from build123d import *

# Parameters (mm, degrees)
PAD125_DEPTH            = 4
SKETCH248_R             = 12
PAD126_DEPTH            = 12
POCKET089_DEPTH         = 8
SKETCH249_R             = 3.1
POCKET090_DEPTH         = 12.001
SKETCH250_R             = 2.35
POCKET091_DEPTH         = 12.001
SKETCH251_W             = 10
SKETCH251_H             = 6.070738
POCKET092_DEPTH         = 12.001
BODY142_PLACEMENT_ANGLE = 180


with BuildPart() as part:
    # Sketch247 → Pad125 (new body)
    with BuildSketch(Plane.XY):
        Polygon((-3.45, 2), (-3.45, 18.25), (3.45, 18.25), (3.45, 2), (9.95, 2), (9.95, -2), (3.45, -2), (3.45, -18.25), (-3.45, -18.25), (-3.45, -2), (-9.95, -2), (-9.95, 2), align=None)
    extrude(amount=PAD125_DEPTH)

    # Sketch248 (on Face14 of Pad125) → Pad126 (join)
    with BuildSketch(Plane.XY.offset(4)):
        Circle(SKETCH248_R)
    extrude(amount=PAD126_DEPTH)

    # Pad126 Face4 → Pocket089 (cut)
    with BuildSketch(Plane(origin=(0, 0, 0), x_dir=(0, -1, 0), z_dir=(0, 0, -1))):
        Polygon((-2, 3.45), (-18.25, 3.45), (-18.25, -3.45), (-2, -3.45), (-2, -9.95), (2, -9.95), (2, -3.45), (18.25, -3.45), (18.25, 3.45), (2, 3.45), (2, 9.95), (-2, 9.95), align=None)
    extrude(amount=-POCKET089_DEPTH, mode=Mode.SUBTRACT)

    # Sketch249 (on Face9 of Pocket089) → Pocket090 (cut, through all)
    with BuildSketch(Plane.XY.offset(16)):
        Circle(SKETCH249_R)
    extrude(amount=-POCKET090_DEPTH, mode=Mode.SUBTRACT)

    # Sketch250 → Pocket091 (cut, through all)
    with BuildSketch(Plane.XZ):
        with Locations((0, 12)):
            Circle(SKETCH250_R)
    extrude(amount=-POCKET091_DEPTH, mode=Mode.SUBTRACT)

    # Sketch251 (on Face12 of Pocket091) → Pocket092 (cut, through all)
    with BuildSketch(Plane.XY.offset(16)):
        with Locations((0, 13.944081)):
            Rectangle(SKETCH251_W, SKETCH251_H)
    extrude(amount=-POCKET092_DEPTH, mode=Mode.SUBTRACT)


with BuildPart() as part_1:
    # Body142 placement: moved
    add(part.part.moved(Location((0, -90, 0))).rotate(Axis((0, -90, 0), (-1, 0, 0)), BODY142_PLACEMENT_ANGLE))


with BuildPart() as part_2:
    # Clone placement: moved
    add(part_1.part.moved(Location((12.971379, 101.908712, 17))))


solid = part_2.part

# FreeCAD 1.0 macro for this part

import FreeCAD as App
import Part
import Sketcher


def add_polygon(sketch, points):
    """Adds a closed chain of lines whose ends are joined by coincident constraints."""
    first, n = sketch.GeometryCount, len(points)
    for a, b in zip(points, points[1:] + points[:1]):
        sketch.addGeometry(Part.LineSegment(App.Vector(*a, 0), App.Vector(*b, 0)), False)
    for i in range(n):
        sketch.addConstraint(Sketcher.Constraint("Coincident", first + i, 2, first + (i + 1) % n, 1))

doc = App.newDocument("Part")
body = doc.addObject("PartDesign::Body", "Body")

# Sketch on XY plane
sketch1 = body.newObject("Sketcher::SketchObject", "Sketch")
sketch1.AttachmentSupport = (doc.getObject("XY_Plane"), [""])
sketch1.MapMode = "FlatFace"
add_polygon(sketch1, [(-3.5, 18.2), (-3.5, 2), (-9.9, 2), (-9.9, -2), (-3.5, -2), (-3.5, -18.2), (3.5, -18.2), (3.5, -2), (9.9, -2), (9.9, 2), (3.5, 2), (3.5, 18.2)])  # lines 0-11
sketch1.addConstraint([
    Sketcher.Constraint("Vertical", 0),
    Sketcher.Constraint("Horizontal", 1),
    Sketcher.Constraint("Vertical", 2),
    Sketcher.Constraint("Horizontal", 3),
    Sketcher.Constraint("Vertical", 4),
    Sketcher.Constraint("Horizontal", 5),
    Sketcher.Constraint("Vertical", 6),
    Sketcher.Constraint("Horizontal", 7),
    Sketcher.Constraint("Vertical", 8),
    Sketcher.Constraint("Horizontal", 9),
    Sketcher.Constraint("Vertical", 10),
    Sketcher.Constraint("Horizontal", 11),
    Sketcher.Constraint("Symmetric", 0, 2, 6, 2, -1, 1),
    Sketcher.Constraint("Symmetric", 2, 2, 8, 2, -1, 1),
    Sketcher.Constraint("Symmetric", 4, 2, 10, 2, -1, 1),
    Sketcher.Constraint("Symmetric", 3, 2, 6, 2, -2),
    Sketcher.Constraint("DistanceY", 2, 2, 2, 1, 4.0),
    Sketcher.Constraint("DistanceX", 1, 2, 1, 1, 6.5),
    Sketcher.Constraint("DistanceX", 5, 1, 5, 2, 6.9),
    Sketcher.Constraint("DistanceY", 0, 2, 0, 1, 16.25),
])
pad1 = body.newObject("PartDesign::Pad", "Pad")
pad1.Profile = sketch1
pad1.Length = 4

# Sketch on XY plane
sketch2 = body.newObject("Sketcher::SketchObject", "Sketch001")
sketch2.AttachmentSupport = (doc.getObject("XY_Plane"), [""])
sketch2.MapMode = "FlatFace"
sketch2.AttachmentOffset = App.Placement(App.Vector(0, 0, 4), App.Rotation())
sketch2.addGeometry(Part.Circle(App.Vector(0, 0, 0), App.Vector(0, 0, 1), 12), False)
sketch2.addConstraint([
    Sketcher.Constraint("Coincident", 0, 3, -1, 1),
    Sketcher.Constraint("Diameter", 0, 24.0),
])
pad2 = body.newObject("PartDesign::Pad", "Pad001")
pad2.Profile = sketch2
pad2.Length = 12

# Sketch on XY plane
sketch3 = body.newObject("Sketcher::SketchObject", "Sketch002")
sketch3.AttachmentSupport = (doc.getObject("XY_Plane"), [""])
sketch3.MapMode = "FlatFace"
add_polygon(sketch3, [(-3.5, 2), (-3.5, 18.2), (3.5, 18.2), (3.5, 2), (9.9, 2), (9.9, -2), (3.5, -2), (3.5, -18.2), (-3.5, -18.2), (-3.5, -2), (-9.9, -2), (-9.9, 2)])  # lines 0-11
sketch3.addConstraint([
    Sketcher.Constraint("Vertical", 0),
    Sketcher.Constraint("Horizontal", 1),
    Sketcher.Constraint("Vertical", 2),
    Sketcher.Constraint("Horizontal", 3),
    Sketcher.Constraint("Vertical", 4),
    Sketcher.Constraint("Horizontal", 5),
    Sketcher.Constraint("Vertical", 6),
    Sketcher.Constraint("Horizontal", 7),
    Sketcher.Constraint("Vertical", 8),
    Sketcher.Constraint("Horizontal", 9),
    Sketcher.Constraint("Vertical", 10),
    Sketcher.Constraint("Horizontal", 11),
    Sketcher.Constraint("Symmetric", 0, 2, 6, 2, -1, 1),
    Sketcher.Constraint("Symmetric", 2, 2, 8, 2, -1, 1),
    Sketcher.Constraint("Symmetric", 4, 2, 10, 2, -1, 1),
    Sketcher.Constraint("Symmetric", 5, 2, 8, 2, -2),
    Sketcher.Constraint("DistanceY", 4, 2, 4, 1, 4.0),
    Sketcher.Constraint("DistanceX", 1, 1, 1, 2, 6.9),
    Sketcher.Constraint("DistanceX", 3, 1, 3, 2, 6.5),
    Sketcher.Constraint("DistanceY", 0, 1, 0, 2, 16.25),
])
pocket1 = body.newObject("PartDesign::Pocket", "Pocket")
pocket1.Profile = sketch3
pocket1.Length = 8
pocket1.Reversed = True

# Sketch on XY plane
sketch4 = body.newObject("Sketcher::SketchObject", "Sketch003")
sketch4.AttachmentSupport = (doc.getObject("XY_Plane"), [""])
sketch4.MapMode = "FlatFace"
sketch4.AttachmentOffset = App.Placement(App.Vector(0, 0, 16), App.Rotation())
sketch4.addGeometry(Part.Circle(App.Vector(0, 0, 0), App.Vector(0, 0, 1), 3.1), False)
sketch4.addConstraint([
    Sketcher.Constraint("Coincident", 0, 3, -1, 1),
    Sketcher.Constraint("Diameter", 0, 6.2),
])
pocket2 = body.newObject("PartDesign::Pocket", "Pocket001")
pocket2.Profile = sketch4
pocket2.Type = "ThroughAll"

# Sketch on XZ plane
sketch5 = body.newObject("Sketcher::SketchObject", "Sketch004")
sketch5.AttachmentSupport = (doc.getObject("XZ_Plane"), [""])
sketch5.MapMode = "FlatFace"
sketch5.addGeometry(Part.Circle(App.Vector(0, 12, 0), App.Vector(0, 0, 1), 2.4), False)
sketch5.addConstraint([
    Sketcher.Constraint("PointOnObject", 0, 3, -2),
    Sketcher.Constraint("Diameter", 0, 4.7),
    Sketcher.Constraint("DistanceY", -1, 1, 0, 3, 12.0),
])
pocket3 = body.newObject("PartDesign::Pocket", "Pocket002")
pocket3.Profile = sketch5
pocket3.Type = "ThroughAll"

# Sketch on XY plane
sketch6 = body.newObject("Sketcher::SketchObject", "Sketch005")
sketch6.AttachmentSupport = (doc.getObject("XY_Plane"), [""])
sketch6.MapMode = "FlatFace"
sketch6.AttachmentOffset = App.Placement(App.Vector(0, 0, 16), App.Rotation())
add_polygon(sketch6, [(-5, 17), (-5, 11), (5, 11), (5, 17)])  # lines 0-3
sketch6.addConstraint([
    Sketcher.Constraint("Vertical", 0),
    Sketcher.Constraint("Horizontal", 1),
    Sketcher.Constraint("Vertical", 2),
    Sketcher.Constraint("Horizontal", 3),
    Sketcher.Constraint("DistanceX", 1, 1, 1, 2, 10.0),
    Sketcher.Constraint("DistanceX", 0, 2, -1, 1, 5.0),
    Sketcher.Constraint("DistanceY", 0, 2, 0, 1, 6.070738),
    Sketcher.Constraint("DistanceY", -1, 1, 2, 2, 16.97945),
])
pocket4 = body.newObject("PartDesign::Pocket", "Pocket003")
pocket4.Profile = sketch6
pocket4.Type = "ThroughAll"
body2 = doc.addObject("PartDesign::Body", "Body001")
doc.recompute()

body.Placement = App.Placement(App.Vector(0, -90, 0), App.Rotation(App.Vector(-1, 0, 0), 180))
boolean = body2.newObject("PartDesign::Boolean", "Boolean")
boolean.Type = "Fuse"
boolean.addObjects([body])
body3 = doc.addObject("PartDesign::Body", "Body002")
doc.recompute()

body2.Placement = App.Placement(App.Vector(12.971379, 101.908712, 17), App.Rotation(App.Vector(0, 0, 1), 0))
boolean2 = body3.newObject("PartDesign::Boolean", "Boolean001")
boolean2.Type = "Fuse"
boolean2.addObjects([body2])

doc.recompute()
